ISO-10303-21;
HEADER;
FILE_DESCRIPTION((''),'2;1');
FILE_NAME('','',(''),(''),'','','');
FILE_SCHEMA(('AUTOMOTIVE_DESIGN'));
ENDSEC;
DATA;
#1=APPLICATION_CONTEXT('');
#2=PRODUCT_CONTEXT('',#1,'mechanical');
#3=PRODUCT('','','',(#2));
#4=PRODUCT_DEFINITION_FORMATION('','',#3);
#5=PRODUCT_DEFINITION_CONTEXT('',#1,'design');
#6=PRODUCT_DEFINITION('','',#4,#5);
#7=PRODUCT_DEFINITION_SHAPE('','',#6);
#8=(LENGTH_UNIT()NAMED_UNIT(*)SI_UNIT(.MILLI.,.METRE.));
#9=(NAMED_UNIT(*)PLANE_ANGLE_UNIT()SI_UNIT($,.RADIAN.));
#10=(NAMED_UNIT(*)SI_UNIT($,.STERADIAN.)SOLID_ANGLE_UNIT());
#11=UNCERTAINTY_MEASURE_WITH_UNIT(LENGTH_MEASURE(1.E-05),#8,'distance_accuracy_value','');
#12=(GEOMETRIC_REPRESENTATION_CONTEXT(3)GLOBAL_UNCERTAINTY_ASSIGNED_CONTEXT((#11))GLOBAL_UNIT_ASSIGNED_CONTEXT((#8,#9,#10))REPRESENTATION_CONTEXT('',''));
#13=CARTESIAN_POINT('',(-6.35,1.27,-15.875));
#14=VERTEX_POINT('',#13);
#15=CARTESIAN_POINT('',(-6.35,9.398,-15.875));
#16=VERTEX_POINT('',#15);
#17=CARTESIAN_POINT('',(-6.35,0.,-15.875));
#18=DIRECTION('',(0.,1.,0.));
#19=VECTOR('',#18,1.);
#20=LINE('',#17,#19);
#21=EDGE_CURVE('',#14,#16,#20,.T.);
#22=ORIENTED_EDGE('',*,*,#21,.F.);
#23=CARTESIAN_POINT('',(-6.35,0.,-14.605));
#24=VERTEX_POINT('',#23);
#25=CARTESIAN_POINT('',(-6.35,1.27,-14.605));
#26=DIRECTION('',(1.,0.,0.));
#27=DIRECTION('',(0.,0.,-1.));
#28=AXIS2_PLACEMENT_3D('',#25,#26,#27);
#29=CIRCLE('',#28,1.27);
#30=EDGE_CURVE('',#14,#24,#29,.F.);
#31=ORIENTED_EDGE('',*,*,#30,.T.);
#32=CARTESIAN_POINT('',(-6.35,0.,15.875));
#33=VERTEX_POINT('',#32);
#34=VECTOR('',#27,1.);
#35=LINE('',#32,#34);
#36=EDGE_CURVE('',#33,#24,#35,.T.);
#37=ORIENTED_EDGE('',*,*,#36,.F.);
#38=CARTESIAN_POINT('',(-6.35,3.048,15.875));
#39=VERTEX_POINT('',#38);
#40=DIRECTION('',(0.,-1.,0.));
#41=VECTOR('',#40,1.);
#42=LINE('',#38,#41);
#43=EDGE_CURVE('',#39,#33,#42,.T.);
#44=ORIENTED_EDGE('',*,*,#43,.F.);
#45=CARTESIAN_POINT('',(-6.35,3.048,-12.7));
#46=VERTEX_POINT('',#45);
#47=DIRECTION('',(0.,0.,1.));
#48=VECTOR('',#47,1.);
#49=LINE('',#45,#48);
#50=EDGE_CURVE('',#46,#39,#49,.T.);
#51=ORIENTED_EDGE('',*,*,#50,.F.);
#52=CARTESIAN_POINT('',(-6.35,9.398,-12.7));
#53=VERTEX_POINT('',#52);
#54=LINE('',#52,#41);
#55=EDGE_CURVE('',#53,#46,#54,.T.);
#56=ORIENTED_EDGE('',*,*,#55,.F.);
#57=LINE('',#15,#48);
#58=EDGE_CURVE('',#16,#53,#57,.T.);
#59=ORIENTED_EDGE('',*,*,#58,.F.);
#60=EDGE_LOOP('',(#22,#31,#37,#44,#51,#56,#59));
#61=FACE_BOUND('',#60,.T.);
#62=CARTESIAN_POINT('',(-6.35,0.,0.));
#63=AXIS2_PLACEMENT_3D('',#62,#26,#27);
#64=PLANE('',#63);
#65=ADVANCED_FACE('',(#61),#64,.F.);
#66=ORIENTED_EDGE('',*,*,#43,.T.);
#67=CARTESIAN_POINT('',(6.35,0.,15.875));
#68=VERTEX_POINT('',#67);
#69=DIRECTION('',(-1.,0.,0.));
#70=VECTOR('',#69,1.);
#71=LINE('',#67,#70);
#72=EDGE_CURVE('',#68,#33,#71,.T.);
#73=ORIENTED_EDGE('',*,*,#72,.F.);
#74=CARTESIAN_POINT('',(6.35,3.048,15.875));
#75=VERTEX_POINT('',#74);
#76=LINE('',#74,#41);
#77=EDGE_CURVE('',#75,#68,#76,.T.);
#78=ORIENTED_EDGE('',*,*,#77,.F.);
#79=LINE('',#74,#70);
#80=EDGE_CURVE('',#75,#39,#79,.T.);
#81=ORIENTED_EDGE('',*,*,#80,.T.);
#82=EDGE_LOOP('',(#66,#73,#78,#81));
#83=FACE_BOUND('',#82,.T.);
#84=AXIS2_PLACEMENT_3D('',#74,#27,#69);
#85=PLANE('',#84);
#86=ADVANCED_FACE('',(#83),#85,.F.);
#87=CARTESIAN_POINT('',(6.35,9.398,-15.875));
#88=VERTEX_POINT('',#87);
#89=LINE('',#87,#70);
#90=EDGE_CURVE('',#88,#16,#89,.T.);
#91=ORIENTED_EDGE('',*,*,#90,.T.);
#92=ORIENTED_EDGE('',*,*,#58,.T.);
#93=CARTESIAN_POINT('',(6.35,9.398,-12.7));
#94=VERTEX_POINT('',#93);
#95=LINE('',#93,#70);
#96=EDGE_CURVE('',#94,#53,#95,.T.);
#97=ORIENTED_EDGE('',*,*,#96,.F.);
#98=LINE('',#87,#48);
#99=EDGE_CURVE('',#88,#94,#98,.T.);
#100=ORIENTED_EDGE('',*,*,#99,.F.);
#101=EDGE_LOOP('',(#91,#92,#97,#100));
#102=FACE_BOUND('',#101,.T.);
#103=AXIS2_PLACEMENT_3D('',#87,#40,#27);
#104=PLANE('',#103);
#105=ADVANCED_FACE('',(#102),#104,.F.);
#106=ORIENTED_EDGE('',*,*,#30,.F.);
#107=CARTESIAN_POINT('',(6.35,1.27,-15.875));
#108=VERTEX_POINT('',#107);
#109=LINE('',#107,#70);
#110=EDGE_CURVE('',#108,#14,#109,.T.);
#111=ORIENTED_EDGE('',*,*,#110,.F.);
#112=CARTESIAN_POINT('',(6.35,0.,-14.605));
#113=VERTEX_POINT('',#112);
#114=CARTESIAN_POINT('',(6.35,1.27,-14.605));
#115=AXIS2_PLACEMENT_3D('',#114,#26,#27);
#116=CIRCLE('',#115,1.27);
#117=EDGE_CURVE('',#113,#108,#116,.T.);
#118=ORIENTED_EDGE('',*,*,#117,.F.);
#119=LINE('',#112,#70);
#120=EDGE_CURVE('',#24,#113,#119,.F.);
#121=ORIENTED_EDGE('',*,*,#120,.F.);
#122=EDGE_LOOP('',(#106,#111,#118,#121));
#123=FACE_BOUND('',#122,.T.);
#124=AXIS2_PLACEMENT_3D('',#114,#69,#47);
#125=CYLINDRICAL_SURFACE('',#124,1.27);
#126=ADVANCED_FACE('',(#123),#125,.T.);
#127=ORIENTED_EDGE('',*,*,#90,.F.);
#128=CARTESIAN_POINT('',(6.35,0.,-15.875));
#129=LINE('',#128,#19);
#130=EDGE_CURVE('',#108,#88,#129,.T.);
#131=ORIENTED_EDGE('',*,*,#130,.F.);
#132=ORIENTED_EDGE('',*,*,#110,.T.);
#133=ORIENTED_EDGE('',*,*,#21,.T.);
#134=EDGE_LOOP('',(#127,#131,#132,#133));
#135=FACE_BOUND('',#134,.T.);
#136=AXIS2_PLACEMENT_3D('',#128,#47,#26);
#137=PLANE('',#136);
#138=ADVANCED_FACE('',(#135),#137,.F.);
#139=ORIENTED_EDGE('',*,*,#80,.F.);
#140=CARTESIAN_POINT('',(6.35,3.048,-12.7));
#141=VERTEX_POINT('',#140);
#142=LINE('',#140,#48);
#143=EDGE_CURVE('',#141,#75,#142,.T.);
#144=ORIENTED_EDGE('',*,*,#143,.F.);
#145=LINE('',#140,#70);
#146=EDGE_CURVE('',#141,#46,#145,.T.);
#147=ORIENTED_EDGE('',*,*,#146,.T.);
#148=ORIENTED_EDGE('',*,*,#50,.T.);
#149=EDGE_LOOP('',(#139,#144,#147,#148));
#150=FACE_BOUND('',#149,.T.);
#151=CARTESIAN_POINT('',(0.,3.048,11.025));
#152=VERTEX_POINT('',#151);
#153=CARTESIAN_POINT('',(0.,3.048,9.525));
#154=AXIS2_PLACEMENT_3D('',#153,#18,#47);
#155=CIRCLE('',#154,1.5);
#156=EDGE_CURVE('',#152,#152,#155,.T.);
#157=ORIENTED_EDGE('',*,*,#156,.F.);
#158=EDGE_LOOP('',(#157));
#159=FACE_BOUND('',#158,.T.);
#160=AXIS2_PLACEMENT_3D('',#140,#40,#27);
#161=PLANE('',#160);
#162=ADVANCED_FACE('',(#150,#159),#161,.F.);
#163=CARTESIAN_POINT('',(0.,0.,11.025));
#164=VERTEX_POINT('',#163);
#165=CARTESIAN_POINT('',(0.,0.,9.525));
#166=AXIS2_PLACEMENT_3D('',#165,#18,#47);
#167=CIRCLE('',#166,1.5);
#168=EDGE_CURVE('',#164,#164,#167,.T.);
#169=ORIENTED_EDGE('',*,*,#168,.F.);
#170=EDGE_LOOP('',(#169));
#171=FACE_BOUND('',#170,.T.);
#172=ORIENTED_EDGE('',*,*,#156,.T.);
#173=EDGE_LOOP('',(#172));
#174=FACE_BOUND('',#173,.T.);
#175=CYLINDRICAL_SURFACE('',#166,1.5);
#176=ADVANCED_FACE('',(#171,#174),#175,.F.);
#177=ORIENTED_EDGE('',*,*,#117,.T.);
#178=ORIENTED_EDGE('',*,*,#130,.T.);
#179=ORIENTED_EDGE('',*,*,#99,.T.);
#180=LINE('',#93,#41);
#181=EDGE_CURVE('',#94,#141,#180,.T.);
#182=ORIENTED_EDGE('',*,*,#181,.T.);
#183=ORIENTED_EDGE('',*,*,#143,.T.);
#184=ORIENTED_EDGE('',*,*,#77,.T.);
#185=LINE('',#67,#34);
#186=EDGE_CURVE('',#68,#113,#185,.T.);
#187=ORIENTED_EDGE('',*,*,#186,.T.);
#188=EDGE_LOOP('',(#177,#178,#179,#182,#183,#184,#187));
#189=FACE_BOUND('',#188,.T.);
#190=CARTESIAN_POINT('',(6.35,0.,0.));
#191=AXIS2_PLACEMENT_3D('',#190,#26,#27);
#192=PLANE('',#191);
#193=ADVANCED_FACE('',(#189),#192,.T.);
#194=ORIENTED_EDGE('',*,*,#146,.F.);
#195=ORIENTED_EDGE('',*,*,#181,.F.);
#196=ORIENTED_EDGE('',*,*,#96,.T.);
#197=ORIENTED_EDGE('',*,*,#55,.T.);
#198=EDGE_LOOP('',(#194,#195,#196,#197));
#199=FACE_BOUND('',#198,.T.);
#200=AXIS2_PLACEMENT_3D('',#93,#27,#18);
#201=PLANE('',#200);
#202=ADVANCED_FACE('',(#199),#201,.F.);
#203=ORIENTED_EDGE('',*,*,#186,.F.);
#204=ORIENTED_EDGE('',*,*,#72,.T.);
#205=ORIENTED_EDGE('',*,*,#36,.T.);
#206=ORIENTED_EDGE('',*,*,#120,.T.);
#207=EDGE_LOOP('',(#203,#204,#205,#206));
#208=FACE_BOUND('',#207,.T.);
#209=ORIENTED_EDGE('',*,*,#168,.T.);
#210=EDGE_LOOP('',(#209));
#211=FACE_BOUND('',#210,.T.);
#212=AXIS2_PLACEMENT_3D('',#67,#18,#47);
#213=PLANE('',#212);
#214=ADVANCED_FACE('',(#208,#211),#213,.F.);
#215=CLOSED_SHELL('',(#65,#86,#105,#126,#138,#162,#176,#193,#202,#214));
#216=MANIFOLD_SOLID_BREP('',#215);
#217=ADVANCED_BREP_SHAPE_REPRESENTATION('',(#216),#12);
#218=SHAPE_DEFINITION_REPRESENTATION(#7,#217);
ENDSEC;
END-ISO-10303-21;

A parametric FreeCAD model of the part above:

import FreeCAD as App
import Part
import Sketcher
Q = App.Units.Quantity


def edges_at(feature, points):
    """Names of the edges that pass closest to the given points."""
    edges = feature.Shape.Edges
    near = lambda p: min(range(len(edges)), key=lambda i: edges[i].distToShape(Part.Vertex(*p))[0])
    return sorted({f"Edge{near(p) + 1}" for p in points})


def add_polygon(sketch, points):
    """Adds a closed chain of lines whose ends are joined by coincident constraints."""
    first, n = sketch.GeometryCount, len(points)
    for a, b in zip(points, points[1:] + points[:1]):
        sketch.addGeometry(Part.LineSegment(App.Vector(*a, 0), App.Vector(*b, 0)), False)
    for i in range(n):
        sketch.addConstraint(Sketcher.Constraint("Coincident", first + i, 2, first + (i + 1) % n, 1))

doc = App.newDocument("Part")
params = doc.addObject("Spreadsheet::Sheet", "Params")
for row, (alias, value) in enumerate([
    ("sketch1_width", "0.37 in"),
    ("sketch1_width2", "0.25 in"),
    ("sketch1_height", "1.25 in"),
    ("pad1_length", "0.5 in"),
    ("fillet_radius", "0.05 in"),
], start=1):
    params.set(f"A{row}", alias)
    params.set(f"B{row}", "=" + value)
    params.setAlias(f"B{row}", alias)

body = doc.addObject("PartDesign::Body", "Body")

sketch1 = doc.addObject("Sketcher::SketchObject", "Sketch")
body.addObject(sketch1)
sketch1.AttachmentSupport = (doc.YZ_Plane, [""])
sketch1.MapMode = "FlatFace"
add_polygon(sketch1, [(0, 15.875), (0, -15.875), (9.398, -15.875), (9.398, -12.7), (3.048, -12.7), (3.048, 15.875)])
sketch1.addConstraint(Sketcher.Constraint("Vertical", 0))
sketch1.addConstraint(Sketcher.Constraint("Horizontal", 1))
sketch1.addConstraint(Sketcher.Constraint("Vertical", 2))
sketch1.addConstraint(Sketcher.Constraint("Horizontal", 3))
sketch1.addConstraint(Sketcher.Constraint("Vertical", 4))
sketch1.addConstraint(Sketcher.Constraint("Horizontal", 5))
sketch1.addConstraint(Sketcher.Constraint("Symmetric", 0, 2, 5, 2, -1, 1))
sketch1.addConstraint(Sketcher.Constraint("DistanceX", 1, 1, 1, 2, Q("0.37 in")))
sketch1.addConstraint(Sketcher.Constraint("DistanceX", 3, 2, 3, 1, Q("0.25 in")))
sketch1.addConstraint(Sketcher.Constraint("DistanceY", 0, 2, 0, 1, Q("1.25 in")))
sketch1.addConstraint(Sketcher.Constraint("DistanceY", 2, 2, -1, 1, Q("0.5 in")))
sketch1.setExpression("Constraints[13]", "Params.sketch1_width")
sketch1.setExpression("Constraints[14]", "Params.sketch1_width2")
sketch1.setExpression("Constraints[15]", "Params.sketch1_height")
pad1 = doc.addObject("PartDesign::Pad", "Pad")
body.addObject(pad1)
pad1.Profile = sketch1
pad1.setExpression("Length", "Params.pad1_length")
pad1.Midplane = True

sketch2 = doc.addObject("Sketcher::SketchObject", "Sketch001")
body.addObject(sketch2)
sketch2.AttachmentSupport = (doc.XZ_Plane, [""])
sketch2.MapMode = "FlatFace"
sketch2.AttachmentOffset = App.Placement(App.Vector(0, 0, -0.12 * 25.4), App.Rotation())
sketch2.addGeometry(Part.Circle(App.Vector(0, 9.525, 0), App.Vector(0, 0, 1), 1.5), False)
sketch2.addConstraint(Sketcher.Constraint("PointOnObject", 0, 3, -2))
sketch2.addConstraint(Sketcher.Constraint("Diameter", 0, Q("3 mm")))
sketch2.addConstraint(Sketcher.Constraint("DistanceY", -1, 1, 0, 3, Q("0.375 in")))
pocket1 = doc.addObject("PartDesign::Pocket", "Pocket")
body.addObject(pocket1)
pocket1.Profile = sketch2
pocket1.Type = "ThroughAll"
pocket1.Reversed = True
doc.recompute()

fillet = doc.addObject("PartDesign::Fillet", "Fillet")
body.addObject(fillet)
fillet.Base = (pocket1, edges_at(pocket1, [(0, 0, -15.875)]))
fillet.setExpression("Radius", "Params.fillet_radius")

doc.recompute()
